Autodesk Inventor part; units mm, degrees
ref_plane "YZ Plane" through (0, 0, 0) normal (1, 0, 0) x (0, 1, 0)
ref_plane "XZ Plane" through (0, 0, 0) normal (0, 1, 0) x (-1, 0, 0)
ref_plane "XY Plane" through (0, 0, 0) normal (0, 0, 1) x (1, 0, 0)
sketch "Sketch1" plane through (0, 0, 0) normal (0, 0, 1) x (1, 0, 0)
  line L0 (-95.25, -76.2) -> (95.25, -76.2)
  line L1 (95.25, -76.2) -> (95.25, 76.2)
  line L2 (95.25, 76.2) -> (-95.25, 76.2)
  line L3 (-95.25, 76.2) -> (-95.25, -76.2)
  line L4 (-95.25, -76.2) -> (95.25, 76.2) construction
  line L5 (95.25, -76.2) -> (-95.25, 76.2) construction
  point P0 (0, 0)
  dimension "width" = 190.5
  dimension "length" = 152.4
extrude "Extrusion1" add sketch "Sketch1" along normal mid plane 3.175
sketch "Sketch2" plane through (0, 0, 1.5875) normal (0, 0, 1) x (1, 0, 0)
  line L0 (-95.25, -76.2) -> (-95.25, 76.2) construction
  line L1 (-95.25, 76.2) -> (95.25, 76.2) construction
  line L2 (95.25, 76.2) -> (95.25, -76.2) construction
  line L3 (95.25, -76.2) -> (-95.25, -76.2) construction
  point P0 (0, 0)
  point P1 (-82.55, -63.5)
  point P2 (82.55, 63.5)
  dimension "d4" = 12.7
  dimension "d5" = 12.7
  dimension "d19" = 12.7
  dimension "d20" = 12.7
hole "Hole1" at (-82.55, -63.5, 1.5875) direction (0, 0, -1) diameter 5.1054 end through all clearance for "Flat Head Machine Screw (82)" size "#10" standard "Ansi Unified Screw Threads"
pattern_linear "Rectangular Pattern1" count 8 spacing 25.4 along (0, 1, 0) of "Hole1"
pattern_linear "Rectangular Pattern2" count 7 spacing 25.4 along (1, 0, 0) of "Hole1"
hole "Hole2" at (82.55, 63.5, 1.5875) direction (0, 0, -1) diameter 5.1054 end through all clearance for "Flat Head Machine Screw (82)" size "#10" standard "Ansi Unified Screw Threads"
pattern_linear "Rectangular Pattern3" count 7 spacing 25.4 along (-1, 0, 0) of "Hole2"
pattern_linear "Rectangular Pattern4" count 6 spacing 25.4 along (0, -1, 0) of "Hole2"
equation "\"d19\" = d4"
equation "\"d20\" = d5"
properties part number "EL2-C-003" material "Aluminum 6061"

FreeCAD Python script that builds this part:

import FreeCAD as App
import Part
import Sketcher
Q = App.Units.Quantity

doc = App.newDocument("Part")
body = doc.addObject("PartDesign::Body", "Body")

# Sketch on XY plane
sketch1 = body.newObject("Sketcher::SketchObject", "Sketch")
sketch1.AttachmentSupport = (doc.getObject("XY_Plane"), [""])
sketch1.MapMode = "FlatFace"
sketch1.addGeometry([
    Part.LineSegment(App.Vector(-95, 76, 0), App.Vector(-95, -76, 0)),
    Part.LineSegment(App.Vector(-95, -76, 0), App.Vector(95, -76, 0)),
    Part.LineSegment(App.Vector(95, -76, 0), App.Vector(95, 76, 0)),
    Part.LineSegment(App.Vector(95, 76, 0), App.Vector(-95, 76, 0)),
], False)
sketch1.addConstraint([
    Sketcher.Constraint("Coincident", 0, 2, 1, 1),
    Sketcher.Constraint("Coincident", 1, 2, 2, 1),
    Sketcher.Constraint("Coincident", 2, 2, 3, 1),
    Sketcher.Constraint("Coincident", 3, 2, 0, 1),
    Sketcher.Constraint("Vertical", 0),
    Sketcher.Constraint("Horizontal", 1),
    Sketcher.Constraint("Vertical", 2),
    Sketcher.Constraint("Horizontal", 3),
    Sketcher.Constraint("Symmetric", 0, 2, 2, 2, -1, 1),
    Sketcher.Constraint("DistanceY", 0, 2, 0, 1, Q("6 in")),
    Sketcher.Constraint("DistanceX", 1, 1, 1, 2, Q("7.5 in")),
])
pad1 = body.newObject("PartDesign::Pad", "Pad")
pad1.Profile = sketch1
pad1.Length = Q("0.125 in")
pad1.Midplane = True

# Sketch on XY plane
sketch2 = body.newObject("Sketcher::SketchObject", "Sketch001")
sketch2.AttachmentSupport = (doc.getObject("XY_Plane"), [""])
sketch2.MapMode = "FlatFace"
sketch2.AttachmentOffset = App.Placement(App.Vector(0, 0, 0.0625 * 25.4), App.Rotation())
sketch2.addGeometry(Part.Circle(App.Vector(-82.5, -63.5, 0), App.Vector(0, 0, 1), 2.6), False)
sketch2.addConstraint([
    Sketcher.Constraint("Diameter", 0, Q("0.201 in")),
    Sketcher.Constraint("DistanceY", 0, 3, -1, 1, Q("2.5 in")),
    Sketcher.Constraint("DistanceX", 0, 3, -1, 1, Q("3.25 in")),
])
doc.recompute()
hole = body.newObject("PartDesign::Hole", "Hole")
hole.Profile = sketch2
hole.ThreadType = "None"
hole.Diameter = Q("0.201 in")
hole.DepthType = "ThroughAll"
doc.recompute()

linearpattern = body.newObject("PartDesign::LinearPattern", "LinearPattern")
linearpattern.Originals = [hole]
linearpattern.Direction = (doc.getObject("Y_Axis"), [""])
linearpattern.Mode = "offset"
linearpattern.Offset = Q("1 in")
linearpattern.Occurrences = 8
body.Tip = linearpattern
doc.recompute()

linearpattern2 = body.newObject("PartDesign::LinearPattern", "LinearPattern001")
linearpattern2.Originals = [hole]
linearpattern2.Direction = (doc.getObject("X_Axis"), [""])
linearpattern2.Mode = "offset"
linearpattern2.Offset = Q("1 in")
linearpattern2.Occurrences = 7
body.Tip = linearpattern2

# Sketch on XY plane
sketch3 = body.newObject("Sketcher::SketchObject", "Sketch002")
sketch3.AttachmentSupport = (doc.getObject("XY_Plane"), [""])
sketch3.MapMode = "FlatFace"
sketch3.AttachmentOffset = App.Placement(App.Vector(0, 0, 0.0625 * 25.4), App.Rotation())
sketch3.addGeometry(Part.Circle(App.Vector(82.5, 63.5, 0), App.Vector(0, 0, 1), 2.6), False)
sketch3.addConstraint([
    Sketcher.Constraint("Diameter", 0, Q("0.201 in")),
    Sketcher.Constraint("DistanceY", -1, 1, 0, 3, Q("2.5 in")),
    Sketcher.Constraint("DistanceX", -1, 1, 0, 3, Q("3.25 in")),
])
doc.recompute()
hole2 = body.newObject("PartDesign::Hole", "Hole001")
hole2.Profile = sketch3
hole2.ThreadType = "None"
hole2.Diameter = Q("0.201 in")
hole2.DepthType = "ThroughAll"
doc.recompute()

linearpattern3 = body.newObject("PartDesign::LinearPattern", "LinearPattern002")
linearpattern3.Originals = [hole2]
linearpattern3.Direction = (doc.getObject("X_Axis"), [""])
linearpattern3.Mode = "offset"
linearpattern3.Offset = Q("1 in")
linearpattern3.Occurrences = 7
linearpattern3.Reversed = True
body.Tip = linearpattern3
doc.recompute()

linearpattern4 = body.newObject("PartDesign::LinearPattern", "LinearPattern003")
linearpattern4.Originals = [hole2]
linearpattern4.Direction = (doc.getObject("Y_Axis"), [""])
linearpattern4.Mode = "offset"
linearpattern4.Offset = Q("1 in")
linearpattern4.Occurrences = 6
linearpattern4.Reversed = True
body.Tip = linearpattern4

doc.recompute()
